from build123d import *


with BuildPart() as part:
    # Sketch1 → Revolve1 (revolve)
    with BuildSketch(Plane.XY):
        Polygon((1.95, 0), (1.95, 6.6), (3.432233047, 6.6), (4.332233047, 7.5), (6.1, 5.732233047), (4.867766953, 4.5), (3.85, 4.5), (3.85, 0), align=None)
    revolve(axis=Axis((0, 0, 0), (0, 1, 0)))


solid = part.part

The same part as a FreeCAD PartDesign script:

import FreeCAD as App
import Part
import Sketcher
from FreeCAD import Vector
Q = App.Units.Quantity


def add_polygon(sketch, points):
    """Adds a closed chain of lines whose ends are joined by coincident constraints."""
    first, n = sketch.GeometryCount, len(points)
    for a, b in zip(points, points[1:] + points[:1]):
        sketch.addGeometry(Part.LineSegment(App.Vector(*a, 0), App.Vector(*b, 0)), False)
    for i in range(n):
        sketch.addConstraint(Sketcher.Constraint("Coincident", first + i, 2, first + (i + 1) % n, 1))

doc = App.newDocument("Part")
params = doc.addObject("Spreadsheet::Sheet", "Params")
for row, (alias, value) in enumerate([
    ("sketch1_width", "1.9 mm"),
    ("sketch1_height", "6.6 mm"),
    ("sketch1_height2", "4.5 mm"),
    ("sketch1_length", "2.5 mm"),
    ("revolution_angle", "360 deg"),
], start=1):
    params.set(f"A{row}", alias)
    params.set(f"B{row}", "=" + value)
    params.setAlias(f"B{row}", alias)

body = doc.addObject("PartDesign::Body", "Body")

# Sketch on XY plane
sketch1 = body.newObject("Sketcher::SketchObject", "Sketch")
sketch1.AttachmentSupport = (doc.getObject("XY_Plane"), [""])
sketch1.MapMode = "FlatFace"
add_polygon(sketch1, [(1.95, 6.6), (1.95, 0), (3.85, 0), (3.85, 4.5), (4.867767, 4.5), (6.1, 5.732233), (4.332233, 7.5), (3.432233, 6.6)])  # lines 0-7
sketch1.addConstraint(Sketcher.Constraint("Vertical", 0))
sketch1.addConstraint(Sketcher.Constraint("Horizontal", 1))
sketch1.addConstraint(Sketcher.Constraint("Vertical", 2))
sketch1.addConstraint(Sketcher.Constraint("Horizontal", 3))
sketch1.addConstraint(Sketcher.Constraint("Horizontal", 7))
sketch1.addConstraint(Sketcher.Constraint("PointOnObject", 0, 2, -1))
sketch1.addConstraint(Sketcher.Constraint("Perpendicular", 4, 5))
sketch1.addConstraint(Sketcher.Constraint("Perpendicular", 5, 6))
sketch1.addConstraint(Sketcher.Constraint("Angle", 4, Q("45 deg")))
sketch1.addConstraint(Sketcher.Constraint("DistanceX", 1, 1, 1, 2, Q("1.9 mm")))
sketch1.addConstraint(Sketcher.Constraint("DistanceY", 0, 2, 0, 1, Q("6.6 mm")))
sketch1.addConstraint(Sketcher.Constraint("DistanceY", 2, 1, 2, 2, Q("4.5 mm")))
sketch1.addConstraint(Sketcher.Constraint("DistanceY", 2, 2, 5, 2, Q("3 mm")))
sketch1.addConstraint(Sketcher.Constraint("Distance", 5, Q("2.5 mm")))
sketch1.addConstraint(Sketcher.Constraint("DistanceX", -1, 1, 4, 2, Q("6.1 mm")))
sketch1.addConstraint(Sketcher.Constraint("DistanceX", -1, 1, 0, 2, Q("1.95 mm")))
sketch1.setExpression("Constraints[17]", "Params.sketch1_width")
sketch1.setExpression("Constraints[18]", "Params.sketch1_height")
sketch1.setExpression("Constraints[19]", "Params.sketch1_height2")
sketch1.setExpression("Constraints[21]", "Params.sketch1_length")
revolution = body.newObject("PartDesign::Revolution", "Revolution")
revolution.Profile = sketch1
revolution.ReferenceAxis = (sketch1, ["V_Axis"])
revolution.setExpression("Angle", "Params.revolution_angle")

doc.recompute()
